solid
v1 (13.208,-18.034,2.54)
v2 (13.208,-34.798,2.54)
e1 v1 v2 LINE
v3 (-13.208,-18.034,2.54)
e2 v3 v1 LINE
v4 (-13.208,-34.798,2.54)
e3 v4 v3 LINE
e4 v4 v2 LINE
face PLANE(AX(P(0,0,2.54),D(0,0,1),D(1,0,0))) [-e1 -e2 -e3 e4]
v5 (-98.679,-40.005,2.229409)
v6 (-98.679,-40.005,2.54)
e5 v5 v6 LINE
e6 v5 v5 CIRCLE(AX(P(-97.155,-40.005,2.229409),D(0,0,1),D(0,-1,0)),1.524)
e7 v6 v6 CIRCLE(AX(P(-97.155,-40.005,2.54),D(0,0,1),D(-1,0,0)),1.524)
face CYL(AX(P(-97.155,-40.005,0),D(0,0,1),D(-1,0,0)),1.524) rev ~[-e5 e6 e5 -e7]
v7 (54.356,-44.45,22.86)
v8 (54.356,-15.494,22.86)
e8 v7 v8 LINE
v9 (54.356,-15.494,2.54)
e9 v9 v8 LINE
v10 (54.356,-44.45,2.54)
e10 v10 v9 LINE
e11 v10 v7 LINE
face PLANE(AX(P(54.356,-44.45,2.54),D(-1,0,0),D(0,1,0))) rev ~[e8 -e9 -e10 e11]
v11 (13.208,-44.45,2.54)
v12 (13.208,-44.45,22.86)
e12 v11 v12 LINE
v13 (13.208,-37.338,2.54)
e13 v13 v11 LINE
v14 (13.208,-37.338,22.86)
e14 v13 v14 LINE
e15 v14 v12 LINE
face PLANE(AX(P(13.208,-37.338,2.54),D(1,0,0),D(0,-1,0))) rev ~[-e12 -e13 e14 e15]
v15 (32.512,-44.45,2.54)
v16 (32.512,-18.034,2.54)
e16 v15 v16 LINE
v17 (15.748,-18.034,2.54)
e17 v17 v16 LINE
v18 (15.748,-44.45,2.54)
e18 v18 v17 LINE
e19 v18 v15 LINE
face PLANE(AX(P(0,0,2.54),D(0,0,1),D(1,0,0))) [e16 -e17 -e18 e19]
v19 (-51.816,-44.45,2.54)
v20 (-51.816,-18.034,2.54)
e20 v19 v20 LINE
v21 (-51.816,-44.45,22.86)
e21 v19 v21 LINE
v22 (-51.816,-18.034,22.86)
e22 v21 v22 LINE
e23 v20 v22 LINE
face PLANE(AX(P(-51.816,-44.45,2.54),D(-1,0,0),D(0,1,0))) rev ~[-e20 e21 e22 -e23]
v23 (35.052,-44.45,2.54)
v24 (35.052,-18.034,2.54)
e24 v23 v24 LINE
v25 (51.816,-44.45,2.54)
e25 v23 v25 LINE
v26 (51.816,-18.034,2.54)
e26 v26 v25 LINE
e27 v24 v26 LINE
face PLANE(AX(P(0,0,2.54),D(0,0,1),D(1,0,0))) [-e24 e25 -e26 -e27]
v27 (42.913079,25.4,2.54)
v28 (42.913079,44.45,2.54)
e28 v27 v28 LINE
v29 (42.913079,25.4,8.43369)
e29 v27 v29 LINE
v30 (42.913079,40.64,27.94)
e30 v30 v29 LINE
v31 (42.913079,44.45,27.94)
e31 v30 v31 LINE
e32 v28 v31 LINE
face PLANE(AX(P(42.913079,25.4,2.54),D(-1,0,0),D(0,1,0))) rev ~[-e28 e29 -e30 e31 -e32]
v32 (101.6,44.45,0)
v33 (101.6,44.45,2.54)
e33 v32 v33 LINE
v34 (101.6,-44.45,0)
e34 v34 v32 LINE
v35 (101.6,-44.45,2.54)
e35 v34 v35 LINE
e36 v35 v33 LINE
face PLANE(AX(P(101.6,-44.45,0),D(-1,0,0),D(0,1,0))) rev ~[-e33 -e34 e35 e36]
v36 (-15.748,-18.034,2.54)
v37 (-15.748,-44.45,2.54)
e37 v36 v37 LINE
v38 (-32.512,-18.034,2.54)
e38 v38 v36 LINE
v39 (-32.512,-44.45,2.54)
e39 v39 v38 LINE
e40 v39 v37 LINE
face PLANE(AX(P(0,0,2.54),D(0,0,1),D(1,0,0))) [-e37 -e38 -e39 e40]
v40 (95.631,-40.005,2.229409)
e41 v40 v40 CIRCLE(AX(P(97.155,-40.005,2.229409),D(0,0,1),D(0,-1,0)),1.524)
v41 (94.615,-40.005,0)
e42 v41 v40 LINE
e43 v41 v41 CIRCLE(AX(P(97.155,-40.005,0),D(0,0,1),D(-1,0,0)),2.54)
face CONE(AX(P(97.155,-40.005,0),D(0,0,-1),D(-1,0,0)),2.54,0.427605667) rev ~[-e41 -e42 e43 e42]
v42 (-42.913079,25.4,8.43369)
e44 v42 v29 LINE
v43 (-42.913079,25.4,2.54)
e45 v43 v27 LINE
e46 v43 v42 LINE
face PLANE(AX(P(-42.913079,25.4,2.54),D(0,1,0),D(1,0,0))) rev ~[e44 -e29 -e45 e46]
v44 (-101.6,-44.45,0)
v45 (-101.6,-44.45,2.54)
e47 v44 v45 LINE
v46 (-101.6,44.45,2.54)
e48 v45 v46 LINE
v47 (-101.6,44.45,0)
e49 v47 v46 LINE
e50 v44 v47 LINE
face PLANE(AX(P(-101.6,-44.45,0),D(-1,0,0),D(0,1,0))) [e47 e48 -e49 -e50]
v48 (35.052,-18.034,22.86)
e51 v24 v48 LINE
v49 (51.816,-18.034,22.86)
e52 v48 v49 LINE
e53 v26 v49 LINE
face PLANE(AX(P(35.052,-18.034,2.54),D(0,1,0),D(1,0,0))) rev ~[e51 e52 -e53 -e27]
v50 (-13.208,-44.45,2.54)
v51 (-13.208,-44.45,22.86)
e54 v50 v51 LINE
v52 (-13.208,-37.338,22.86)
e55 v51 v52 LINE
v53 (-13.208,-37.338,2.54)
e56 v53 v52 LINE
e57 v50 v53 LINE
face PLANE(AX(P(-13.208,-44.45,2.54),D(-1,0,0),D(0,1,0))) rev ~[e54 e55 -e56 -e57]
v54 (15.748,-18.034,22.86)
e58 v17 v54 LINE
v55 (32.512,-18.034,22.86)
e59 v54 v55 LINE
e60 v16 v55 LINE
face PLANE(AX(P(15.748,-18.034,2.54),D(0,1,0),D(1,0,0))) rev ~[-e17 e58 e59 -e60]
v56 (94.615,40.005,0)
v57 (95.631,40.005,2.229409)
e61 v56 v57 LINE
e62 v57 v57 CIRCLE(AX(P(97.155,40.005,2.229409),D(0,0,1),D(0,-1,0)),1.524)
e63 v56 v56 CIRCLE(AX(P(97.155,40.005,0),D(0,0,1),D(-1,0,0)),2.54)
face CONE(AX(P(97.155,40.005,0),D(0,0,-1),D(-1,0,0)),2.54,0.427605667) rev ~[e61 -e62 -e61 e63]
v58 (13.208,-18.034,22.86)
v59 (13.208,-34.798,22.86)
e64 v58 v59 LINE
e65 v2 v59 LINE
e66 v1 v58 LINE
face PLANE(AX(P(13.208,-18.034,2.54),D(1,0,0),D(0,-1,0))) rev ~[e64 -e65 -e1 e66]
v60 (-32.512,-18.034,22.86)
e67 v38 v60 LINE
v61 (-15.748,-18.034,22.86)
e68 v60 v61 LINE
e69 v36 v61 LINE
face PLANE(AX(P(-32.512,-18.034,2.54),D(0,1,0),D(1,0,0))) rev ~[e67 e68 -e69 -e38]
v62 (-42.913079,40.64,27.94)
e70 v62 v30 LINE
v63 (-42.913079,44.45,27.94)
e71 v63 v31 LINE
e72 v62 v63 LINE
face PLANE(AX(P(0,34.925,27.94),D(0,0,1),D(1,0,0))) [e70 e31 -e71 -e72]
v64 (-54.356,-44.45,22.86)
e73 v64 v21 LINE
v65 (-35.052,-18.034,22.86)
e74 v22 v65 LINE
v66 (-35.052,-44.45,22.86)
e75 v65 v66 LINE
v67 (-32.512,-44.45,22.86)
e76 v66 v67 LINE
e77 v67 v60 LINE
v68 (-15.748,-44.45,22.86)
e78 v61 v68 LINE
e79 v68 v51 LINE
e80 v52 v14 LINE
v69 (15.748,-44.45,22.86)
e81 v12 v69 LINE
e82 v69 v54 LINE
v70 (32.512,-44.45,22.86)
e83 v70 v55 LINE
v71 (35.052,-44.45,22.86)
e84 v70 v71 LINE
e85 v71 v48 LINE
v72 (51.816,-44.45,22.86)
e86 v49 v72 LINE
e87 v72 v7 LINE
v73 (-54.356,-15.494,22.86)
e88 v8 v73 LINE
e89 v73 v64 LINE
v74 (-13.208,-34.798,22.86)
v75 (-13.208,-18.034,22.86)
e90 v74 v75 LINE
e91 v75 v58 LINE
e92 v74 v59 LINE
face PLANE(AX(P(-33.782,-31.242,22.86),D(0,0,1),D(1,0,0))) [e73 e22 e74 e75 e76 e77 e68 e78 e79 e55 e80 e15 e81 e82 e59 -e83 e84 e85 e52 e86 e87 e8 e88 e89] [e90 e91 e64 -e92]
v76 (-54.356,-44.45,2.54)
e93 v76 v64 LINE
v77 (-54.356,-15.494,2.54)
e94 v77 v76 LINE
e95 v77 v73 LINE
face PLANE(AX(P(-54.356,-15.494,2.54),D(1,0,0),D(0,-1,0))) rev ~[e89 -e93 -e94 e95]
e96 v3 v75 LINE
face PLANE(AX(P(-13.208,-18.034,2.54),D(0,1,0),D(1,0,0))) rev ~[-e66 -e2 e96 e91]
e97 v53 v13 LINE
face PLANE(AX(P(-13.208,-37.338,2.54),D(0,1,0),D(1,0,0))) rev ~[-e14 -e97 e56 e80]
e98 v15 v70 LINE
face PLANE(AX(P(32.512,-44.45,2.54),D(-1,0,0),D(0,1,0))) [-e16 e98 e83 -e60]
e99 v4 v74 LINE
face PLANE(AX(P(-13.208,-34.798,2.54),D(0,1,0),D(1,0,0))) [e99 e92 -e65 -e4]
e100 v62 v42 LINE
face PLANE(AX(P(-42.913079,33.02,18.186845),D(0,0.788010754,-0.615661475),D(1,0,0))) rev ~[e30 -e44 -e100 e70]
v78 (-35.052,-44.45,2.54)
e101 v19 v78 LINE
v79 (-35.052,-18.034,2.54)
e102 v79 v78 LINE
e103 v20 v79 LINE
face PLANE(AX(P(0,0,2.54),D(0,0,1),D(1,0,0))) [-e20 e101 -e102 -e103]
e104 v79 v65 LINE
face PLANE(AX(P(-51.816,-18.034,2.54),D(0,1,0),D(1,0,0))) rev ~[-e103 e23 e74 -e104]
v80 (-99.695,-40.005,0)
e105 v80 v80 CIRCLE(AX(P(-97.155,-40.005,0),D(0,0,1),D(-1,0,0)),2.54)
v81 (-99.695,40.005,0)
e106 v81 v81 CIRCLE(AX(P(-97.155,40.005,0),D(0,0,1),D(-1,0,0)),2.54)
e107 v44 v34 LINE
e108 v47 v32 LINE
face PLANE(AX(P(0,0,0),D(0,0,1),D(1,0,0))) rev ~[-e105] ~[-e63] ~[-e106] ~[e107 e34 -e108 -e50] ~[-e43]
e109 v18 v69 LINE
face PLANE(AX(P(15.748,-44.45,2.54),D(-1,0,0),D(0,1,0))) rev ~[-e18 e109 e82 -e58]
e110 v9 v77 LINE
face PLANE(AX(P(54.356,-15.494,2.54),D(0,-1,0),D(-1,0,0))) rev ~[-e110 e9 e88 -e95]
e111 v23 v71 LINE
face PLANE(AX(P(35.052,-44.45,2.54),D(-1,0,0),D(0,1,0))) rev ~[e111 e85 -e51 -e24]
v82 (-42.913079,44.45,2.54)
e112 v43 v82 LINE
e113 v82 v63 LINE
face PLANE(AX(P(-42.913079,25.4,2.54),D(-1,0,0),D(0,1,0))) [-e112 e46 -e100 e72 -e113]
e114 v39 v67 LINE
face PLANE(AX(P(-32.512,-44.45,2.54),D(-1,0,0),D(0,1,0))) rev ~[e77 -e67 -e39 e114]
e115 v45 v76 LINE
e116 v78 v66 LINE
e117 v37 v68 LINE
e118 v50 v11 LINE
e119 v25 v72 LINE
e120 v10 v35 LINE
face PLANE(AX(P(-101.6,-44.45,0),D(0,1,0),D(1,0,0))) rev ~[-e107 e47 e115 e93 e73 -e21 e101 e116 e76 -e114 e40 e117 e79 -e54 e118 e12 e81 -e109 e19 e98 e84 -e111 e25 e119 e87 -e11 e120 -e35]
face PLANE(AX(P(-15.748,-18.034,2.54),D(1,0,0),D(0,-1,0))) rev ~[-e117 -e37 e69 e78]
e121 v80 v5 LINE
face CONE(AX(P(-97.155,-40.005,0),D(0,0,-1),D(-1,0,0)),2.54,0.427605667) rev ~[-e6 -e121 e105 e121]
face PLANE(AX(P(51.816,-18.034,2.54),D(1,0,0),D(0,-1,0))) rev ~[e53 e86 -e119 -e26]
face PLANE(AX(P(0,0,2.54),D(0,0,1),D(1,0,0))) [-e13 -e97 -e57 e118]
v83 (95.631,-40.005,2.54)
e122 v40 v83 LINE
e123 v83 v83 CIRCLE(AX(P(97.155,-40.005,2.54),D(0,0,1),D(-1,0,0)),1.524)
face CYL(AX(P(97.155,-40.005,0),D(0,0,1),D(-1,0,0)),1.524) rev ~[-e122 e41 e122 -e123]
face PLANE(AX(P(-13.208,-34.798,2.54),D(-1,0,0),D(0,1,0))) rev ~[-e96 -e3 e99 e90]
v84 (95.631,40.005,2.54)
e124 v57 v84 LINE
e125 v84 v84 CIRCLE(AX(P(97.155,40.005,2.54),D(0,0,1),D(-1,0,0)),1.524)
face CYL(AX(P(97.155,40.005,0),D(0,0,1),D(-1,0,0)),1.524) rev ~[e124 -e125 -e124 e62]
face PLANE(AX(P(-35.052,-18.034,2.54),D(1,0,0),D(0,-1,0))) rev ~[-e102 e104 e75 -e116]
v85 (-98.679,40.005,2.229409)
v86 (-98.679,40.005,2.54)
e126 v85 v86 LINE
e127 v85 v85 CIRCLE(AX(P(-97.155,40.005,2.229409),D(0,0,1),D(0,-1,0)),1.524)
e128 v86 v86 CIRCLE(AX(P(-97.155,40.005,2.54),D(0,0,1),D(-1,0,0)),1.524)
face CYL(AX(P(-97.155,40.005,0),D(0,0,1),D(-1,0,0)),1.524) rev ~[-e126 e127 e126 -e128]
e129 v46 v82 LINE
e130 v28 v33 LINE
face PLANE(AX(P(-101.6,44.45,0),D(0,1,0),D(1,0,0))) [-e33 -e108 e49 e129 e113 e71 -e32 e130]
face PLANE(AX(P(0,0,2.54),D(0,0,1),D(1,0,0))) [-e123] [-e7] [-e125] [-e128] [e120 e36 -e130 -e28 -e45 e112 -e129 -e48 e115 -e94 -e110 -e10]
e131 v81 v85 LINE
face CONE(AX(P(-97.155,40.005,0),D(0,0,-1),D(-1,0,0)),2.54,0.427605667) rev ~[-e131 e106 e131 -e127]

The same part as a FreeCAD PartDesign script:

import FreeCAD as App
import Part
import Sketcher

V = App.Vector
Q = App.Units.Quantity


def edges_at(feature, points):
    """Names of the edges that pass closest to the given points."""
    edges = feature.Shape.Edges
    near = lambda p: min(range(len(edges)), key=lambda i: edges[i].distToShape(Part.Vertex(*p))[0])
    return sorted({f"Edge{near(p) + 1}" for p in points})


def add_polygon(sketch, points):
    """Adds a closed chain of lines whose ends are joined by coincident constraints."""
    first, n = sketch.GeometryCount, len(points)
    for a, b in zip(points, points[1:] + points[:1]):
        sketch.addGeometry(Part.LineSegment(App.Vector(*a, 0), App.Vector(*b, 0)), False)
    for i in range(n):
        sketch.addConstraint(Sketcher.Constraint("Coincident", first + i, 2, first + (i + 1) % n, 1))

doc = App.newDocument("Part")
body = doc.addObject("PartDesign::Body", "Body")

sketch1 = doc.addObject("Sketcher::SketchObject", "Sketch")
body.addObject(sketch1)
sketch1.AttachmentSupport = (doc.XY_Plane, [""])
sketch1.MapMode = "FlatFace"
add_polygon(sketch1, [(-101.6, 44.45), (-101.6, -44.45), (101.6, -44.45), (101.6, 44.45)])
sketch1.addConstraint([
    Sketcher.Constraint("Vertical", 0),
    Sketcher.Constraint("Horizontal", 1),
    Sketcher.Constraint("Vertical", 2),
    Sketcher.Constraint("Horizontal", 3),
    Sketcher.Constraint("Symmetric", 0, 2, 2, 2, -1, 1),
    Sketcher.Constraint("DistanceX", 1, 1, 1, 2, Q("8 in")),
    Sketcher.Constraint("DistanceY", 0, 2, 0, 1, Q("3.5 in")),
])
pad1 = doc.addObject("PartDesign::Pad", "Pad")
body.addObject(pad1)
pad1.Profile = sketch1
pad1.Length = Q("0.1 in")

sketch2 = doc.addObject("Sketcher::SketchObject", "Sketch001")
body.addObject(sketch2)
sketch2.AttachmentSupport = (doc.XY_Plane, [""])
sketch2.MapMode = "FlatFace"
sketch2.AttachmentOffset = App.Placement(V(0, 0, 0.1 * 25.4), App.Rotation())
add_polygon(sketch2, [(-35.052, -44.45), (-32.512, -44.45), (-32.512, -18.034), (-15.748, -18.034), (-15.748, -44.45), (-13.208, -44.45), (-13.208, -37.338), (13.208, -37.338), (13.208, -44.45), (15.748, -44.45), (15.748, -18.034), (32.512, -18.034), (32.512, -44.45), (35.052, -44.45), (35.052, -18.034), (51.816, -18.034), (51.816, -44.45), (54.356, -44.45), (54.356, -15.494), (-54.356, -15.494), (-54.356, -44.45), (-51.816, -44.45), (-51.816, -18.034), (-35.052, -18.034)])
add_polygon(sketch2, [(-13.208, -34.798), (-13.208, -18.034), (13.208, -18.034), (13.208, -34.798)])
sketch2.addConstraint([
    Sketcher.Constraint("Horizontal", 0),
    Sketcher.Constraint("Vertical", 1),
    Sketcher.Constraint("Horizontal", 2),
    Sketcher.Constraint("Vertical", 3),
    Sketcher.Constraint("Horizontal", 4),
    Sketcher.Constraint("Vertical", 5),
    Sketcher.Constraint("Horizontal", 6),
    Sketcher.Constraint("Vertical", 7),
    Sketcher.Constraint("Horizontal", 8),
    Sketcher.Constraint("Vertical", 9),
    Sketcher.Constraint("Horizontal", 10),
    Sketcher.Constraint("Vertical", 11),
    Sketcher.Constraint("Horizontal", 12),
    Sketcher.Constraint("Vertical", 13),
    Sketcher.Constraint("Horizontal", 14),
    Sketcher.Constraint("Vertical", 15),
    Sketcher.Constraint("Horizontal", 16),
    Sketcher.Constraint("Vertical", 17),
    Sketcher.Constraint("Horizontal", 18),
    Sketcher.Constraint("Vertical", 19),
    Sketcher.Constraint("Horizontal", 20),
    Sketcher.Constraint("Vertical", 21),
    Sketcher.Constraint("Horizontal", 22),
    Sketcher.Constraint("Vertical", 23),
    Sketcher.Constraint("Vertical", 24),
    Sketcher.Constraint("Horizontal", 25),
    Sketcher.Constraint("Vertical", 26),
    Sketcher.Constraint("Horizontal", 27),
    Sketcher.Constraint("Symmetric", 4, 2, 7, 2, -2),
    Sketcher.Constraint("Symmetric", 2, 2, 9, 2, -2),
    Sketcher.Constraint("Symmetric", 0, 2, 11, 2, -2),
    Sketcher.Constraint("Symmetric", 16, 2, 19, 2, -2),
    Sketcher.Constraint("Symmetric", 14, 2, 21, 2, -2),
    Sketcher.Constraint("Horizontal", 0, 2, 3, 2),
    Sketcher.Constraint("Horizontal", 10, 2, 13, 2),
    Sketcher.Constraint("Horizontal", 12, 2, 15, 2),
    Sketcher.Constraint("Horizontal", 22, 2, 24, 2),
    Sketcher.Constraint("Vertical", 5, 2, 24, 2),
    Sketcher.Constraint("Vertical", 7, 2, 25, 2),
    Sketcher.Constraint("Equal", 0, 4),
    Sketcher.Constraint("Equal", 8, 12),
    Sketcher.Constraint("Equal", 10, 14),
    Sketcher.Constraint("Equal", 12, 16),
    Sketcher.Constraint("Equal", 27, 1),
    Sketcher.Constraint("Equal", 22, 24),
    Sketcher.Constraint("DistanceX", 0, 1, 0, 2, Q("0.1 in")),
    Sketcher.Constraint("DistanceX", 2, 1, 2, 2, Q("0.66 in")),
    Sketcher.Constraint("DistanceX", 6, 1, 6, 2, Q("1.04 in")),
    Sketcher.Constraint("DistanceY", 5, 1, 5, 2, Q("0.28 in")),
    Sketcher.Constraint("DistanceY", 17, 1, 17, 2, Q("1.14 in")),
    Sketcher.Constraint("DistanceY", 0, 2, -1, 1, Q("1.75 in")),
])
pad2 = doc.addObject("PartDesign::Pad", "Pad001")
body.addObject(pad2)
pad2.Profile = sketch2
pad2.Length = Q("0.8 in")

sketch3 = doc.addObject("Sketcher::SketchObject", "Sketch002")
body.addObject(sketch3)
sketch3.AttachmentSupport = (doc.XY_Plane, [""])
sketch3.MapMode = "FlatFace"
sketch3.addGeometry([
    Part.Circle(V(97.155, 40.005, 0), V(0, 0, 1), 1.524),
    Part.Circle(V(97.155, -40.005, 0), V(0, 0, 1), 1.524),
    Part.Circle(V(-97.155, -40.005, 0), V(0, 0, 1), 1.524),
    Part.Circle(V(-97.155, 40.005, 0), V(0, 0, 1), 1.524),
], False)
sketch3.addConstraint([
    Sketcher.Constraint("Equal", 0, 1),
    Sketcher.Constraint("Equal", 1, 2),
    Sketcher.Constraint("Equal", 2, 3),
    Sketcher.Constraint("Symmetric", 0, 3, 2, 3, -1, 1),
    Sketcher.Constraint("Symmetric", 1, 3, 3, 3, -1, 1),
    Sketcher.Constraint("Symmetric", 1, 3, 2, 3, -2),
    Sketcher.Constraint("Diameter", 0, Q("0.12 in")),
    Sketcher.Constraint("DistanceY", 1, 3, 0, 3, Q("3.15 in")),
    Sketcher.Constraint("DistanceX", 2, 3, 1, 3, Q("7.65 in")),
])
doc.recompute()
hole = doc.addObject("PartDesign::Hole", "Hole")
body.addObject(hole)
hole.Profile = sketch3
hole.ThreadType = "None"
hole.Diameter = Q("0.12 in")
hole.DepthType = "ThroughAll"
hole.HoleCutType = "Countersink"
hole.HoleCutDiameter = Q("0.2 in")
hole.HoleCutCountersinkAngle = 49
hole.Reversed = True

sketch4 = doc.addObject("Sketcher::SketchObject", "Sketch003")
body.addObject(sketch4)
sketch4.AttachmentSupport = (doc.XY_Plane, [""])
sketch4.MapMode = "FlatFace"
sketch4.AttachmentOffset = App.Placement(V(0, 0, 0.1 * 25.4), App.Rotation())
add_polygon(sketch4, [(-42.913079, 44.45), (-42.913079, 25.4), (42.913079, 25.4), (42.913079, 44.45)])
sketch4.addConstraint([
    Sketcher.Constraint("Vertical", 0),
    Sketcher.Constraint("Horizontal", 1),
    Sketcher.Constraint("Vertical", 2),
    Sketcher.Constraint("Horizontal", 3),
    Sketcher.Constraint("DistanceY", -1, 1, 0, 2, Q("1 in")),
    Sketcher.Constraint("DistanceY", 0, 2, 0, 1, Q("0.75 in")),
    Sketcher.Constraint("DistanceX", 1, 1, 1, 2, 85.826159),
    Sketcher.Constraint("DistanceX", 0, 2, -1, 1, 42.913079),
])
pad3 = doc.addObject("PartDesign::Pad", "Pad002")
body.addObject(pad3)
pad3.Profile = sketch4
pad3.Length = Q("1 in")
doc.recompute()

chamfer = doc.addObject("PartDesign::Chamfer", "Chamfer")
body.addObject(chamfer)
chamfer.Base = (pad3, edges_at(pad3, [(0, 25.4, 27.94)]))
chamfer.ChamferType = "Two distances"
chamfer.Size = Q("0.6 in")
chamfer.Size2 = 19.50631
chamfer.FlipDirection = True

doc.recompute()
